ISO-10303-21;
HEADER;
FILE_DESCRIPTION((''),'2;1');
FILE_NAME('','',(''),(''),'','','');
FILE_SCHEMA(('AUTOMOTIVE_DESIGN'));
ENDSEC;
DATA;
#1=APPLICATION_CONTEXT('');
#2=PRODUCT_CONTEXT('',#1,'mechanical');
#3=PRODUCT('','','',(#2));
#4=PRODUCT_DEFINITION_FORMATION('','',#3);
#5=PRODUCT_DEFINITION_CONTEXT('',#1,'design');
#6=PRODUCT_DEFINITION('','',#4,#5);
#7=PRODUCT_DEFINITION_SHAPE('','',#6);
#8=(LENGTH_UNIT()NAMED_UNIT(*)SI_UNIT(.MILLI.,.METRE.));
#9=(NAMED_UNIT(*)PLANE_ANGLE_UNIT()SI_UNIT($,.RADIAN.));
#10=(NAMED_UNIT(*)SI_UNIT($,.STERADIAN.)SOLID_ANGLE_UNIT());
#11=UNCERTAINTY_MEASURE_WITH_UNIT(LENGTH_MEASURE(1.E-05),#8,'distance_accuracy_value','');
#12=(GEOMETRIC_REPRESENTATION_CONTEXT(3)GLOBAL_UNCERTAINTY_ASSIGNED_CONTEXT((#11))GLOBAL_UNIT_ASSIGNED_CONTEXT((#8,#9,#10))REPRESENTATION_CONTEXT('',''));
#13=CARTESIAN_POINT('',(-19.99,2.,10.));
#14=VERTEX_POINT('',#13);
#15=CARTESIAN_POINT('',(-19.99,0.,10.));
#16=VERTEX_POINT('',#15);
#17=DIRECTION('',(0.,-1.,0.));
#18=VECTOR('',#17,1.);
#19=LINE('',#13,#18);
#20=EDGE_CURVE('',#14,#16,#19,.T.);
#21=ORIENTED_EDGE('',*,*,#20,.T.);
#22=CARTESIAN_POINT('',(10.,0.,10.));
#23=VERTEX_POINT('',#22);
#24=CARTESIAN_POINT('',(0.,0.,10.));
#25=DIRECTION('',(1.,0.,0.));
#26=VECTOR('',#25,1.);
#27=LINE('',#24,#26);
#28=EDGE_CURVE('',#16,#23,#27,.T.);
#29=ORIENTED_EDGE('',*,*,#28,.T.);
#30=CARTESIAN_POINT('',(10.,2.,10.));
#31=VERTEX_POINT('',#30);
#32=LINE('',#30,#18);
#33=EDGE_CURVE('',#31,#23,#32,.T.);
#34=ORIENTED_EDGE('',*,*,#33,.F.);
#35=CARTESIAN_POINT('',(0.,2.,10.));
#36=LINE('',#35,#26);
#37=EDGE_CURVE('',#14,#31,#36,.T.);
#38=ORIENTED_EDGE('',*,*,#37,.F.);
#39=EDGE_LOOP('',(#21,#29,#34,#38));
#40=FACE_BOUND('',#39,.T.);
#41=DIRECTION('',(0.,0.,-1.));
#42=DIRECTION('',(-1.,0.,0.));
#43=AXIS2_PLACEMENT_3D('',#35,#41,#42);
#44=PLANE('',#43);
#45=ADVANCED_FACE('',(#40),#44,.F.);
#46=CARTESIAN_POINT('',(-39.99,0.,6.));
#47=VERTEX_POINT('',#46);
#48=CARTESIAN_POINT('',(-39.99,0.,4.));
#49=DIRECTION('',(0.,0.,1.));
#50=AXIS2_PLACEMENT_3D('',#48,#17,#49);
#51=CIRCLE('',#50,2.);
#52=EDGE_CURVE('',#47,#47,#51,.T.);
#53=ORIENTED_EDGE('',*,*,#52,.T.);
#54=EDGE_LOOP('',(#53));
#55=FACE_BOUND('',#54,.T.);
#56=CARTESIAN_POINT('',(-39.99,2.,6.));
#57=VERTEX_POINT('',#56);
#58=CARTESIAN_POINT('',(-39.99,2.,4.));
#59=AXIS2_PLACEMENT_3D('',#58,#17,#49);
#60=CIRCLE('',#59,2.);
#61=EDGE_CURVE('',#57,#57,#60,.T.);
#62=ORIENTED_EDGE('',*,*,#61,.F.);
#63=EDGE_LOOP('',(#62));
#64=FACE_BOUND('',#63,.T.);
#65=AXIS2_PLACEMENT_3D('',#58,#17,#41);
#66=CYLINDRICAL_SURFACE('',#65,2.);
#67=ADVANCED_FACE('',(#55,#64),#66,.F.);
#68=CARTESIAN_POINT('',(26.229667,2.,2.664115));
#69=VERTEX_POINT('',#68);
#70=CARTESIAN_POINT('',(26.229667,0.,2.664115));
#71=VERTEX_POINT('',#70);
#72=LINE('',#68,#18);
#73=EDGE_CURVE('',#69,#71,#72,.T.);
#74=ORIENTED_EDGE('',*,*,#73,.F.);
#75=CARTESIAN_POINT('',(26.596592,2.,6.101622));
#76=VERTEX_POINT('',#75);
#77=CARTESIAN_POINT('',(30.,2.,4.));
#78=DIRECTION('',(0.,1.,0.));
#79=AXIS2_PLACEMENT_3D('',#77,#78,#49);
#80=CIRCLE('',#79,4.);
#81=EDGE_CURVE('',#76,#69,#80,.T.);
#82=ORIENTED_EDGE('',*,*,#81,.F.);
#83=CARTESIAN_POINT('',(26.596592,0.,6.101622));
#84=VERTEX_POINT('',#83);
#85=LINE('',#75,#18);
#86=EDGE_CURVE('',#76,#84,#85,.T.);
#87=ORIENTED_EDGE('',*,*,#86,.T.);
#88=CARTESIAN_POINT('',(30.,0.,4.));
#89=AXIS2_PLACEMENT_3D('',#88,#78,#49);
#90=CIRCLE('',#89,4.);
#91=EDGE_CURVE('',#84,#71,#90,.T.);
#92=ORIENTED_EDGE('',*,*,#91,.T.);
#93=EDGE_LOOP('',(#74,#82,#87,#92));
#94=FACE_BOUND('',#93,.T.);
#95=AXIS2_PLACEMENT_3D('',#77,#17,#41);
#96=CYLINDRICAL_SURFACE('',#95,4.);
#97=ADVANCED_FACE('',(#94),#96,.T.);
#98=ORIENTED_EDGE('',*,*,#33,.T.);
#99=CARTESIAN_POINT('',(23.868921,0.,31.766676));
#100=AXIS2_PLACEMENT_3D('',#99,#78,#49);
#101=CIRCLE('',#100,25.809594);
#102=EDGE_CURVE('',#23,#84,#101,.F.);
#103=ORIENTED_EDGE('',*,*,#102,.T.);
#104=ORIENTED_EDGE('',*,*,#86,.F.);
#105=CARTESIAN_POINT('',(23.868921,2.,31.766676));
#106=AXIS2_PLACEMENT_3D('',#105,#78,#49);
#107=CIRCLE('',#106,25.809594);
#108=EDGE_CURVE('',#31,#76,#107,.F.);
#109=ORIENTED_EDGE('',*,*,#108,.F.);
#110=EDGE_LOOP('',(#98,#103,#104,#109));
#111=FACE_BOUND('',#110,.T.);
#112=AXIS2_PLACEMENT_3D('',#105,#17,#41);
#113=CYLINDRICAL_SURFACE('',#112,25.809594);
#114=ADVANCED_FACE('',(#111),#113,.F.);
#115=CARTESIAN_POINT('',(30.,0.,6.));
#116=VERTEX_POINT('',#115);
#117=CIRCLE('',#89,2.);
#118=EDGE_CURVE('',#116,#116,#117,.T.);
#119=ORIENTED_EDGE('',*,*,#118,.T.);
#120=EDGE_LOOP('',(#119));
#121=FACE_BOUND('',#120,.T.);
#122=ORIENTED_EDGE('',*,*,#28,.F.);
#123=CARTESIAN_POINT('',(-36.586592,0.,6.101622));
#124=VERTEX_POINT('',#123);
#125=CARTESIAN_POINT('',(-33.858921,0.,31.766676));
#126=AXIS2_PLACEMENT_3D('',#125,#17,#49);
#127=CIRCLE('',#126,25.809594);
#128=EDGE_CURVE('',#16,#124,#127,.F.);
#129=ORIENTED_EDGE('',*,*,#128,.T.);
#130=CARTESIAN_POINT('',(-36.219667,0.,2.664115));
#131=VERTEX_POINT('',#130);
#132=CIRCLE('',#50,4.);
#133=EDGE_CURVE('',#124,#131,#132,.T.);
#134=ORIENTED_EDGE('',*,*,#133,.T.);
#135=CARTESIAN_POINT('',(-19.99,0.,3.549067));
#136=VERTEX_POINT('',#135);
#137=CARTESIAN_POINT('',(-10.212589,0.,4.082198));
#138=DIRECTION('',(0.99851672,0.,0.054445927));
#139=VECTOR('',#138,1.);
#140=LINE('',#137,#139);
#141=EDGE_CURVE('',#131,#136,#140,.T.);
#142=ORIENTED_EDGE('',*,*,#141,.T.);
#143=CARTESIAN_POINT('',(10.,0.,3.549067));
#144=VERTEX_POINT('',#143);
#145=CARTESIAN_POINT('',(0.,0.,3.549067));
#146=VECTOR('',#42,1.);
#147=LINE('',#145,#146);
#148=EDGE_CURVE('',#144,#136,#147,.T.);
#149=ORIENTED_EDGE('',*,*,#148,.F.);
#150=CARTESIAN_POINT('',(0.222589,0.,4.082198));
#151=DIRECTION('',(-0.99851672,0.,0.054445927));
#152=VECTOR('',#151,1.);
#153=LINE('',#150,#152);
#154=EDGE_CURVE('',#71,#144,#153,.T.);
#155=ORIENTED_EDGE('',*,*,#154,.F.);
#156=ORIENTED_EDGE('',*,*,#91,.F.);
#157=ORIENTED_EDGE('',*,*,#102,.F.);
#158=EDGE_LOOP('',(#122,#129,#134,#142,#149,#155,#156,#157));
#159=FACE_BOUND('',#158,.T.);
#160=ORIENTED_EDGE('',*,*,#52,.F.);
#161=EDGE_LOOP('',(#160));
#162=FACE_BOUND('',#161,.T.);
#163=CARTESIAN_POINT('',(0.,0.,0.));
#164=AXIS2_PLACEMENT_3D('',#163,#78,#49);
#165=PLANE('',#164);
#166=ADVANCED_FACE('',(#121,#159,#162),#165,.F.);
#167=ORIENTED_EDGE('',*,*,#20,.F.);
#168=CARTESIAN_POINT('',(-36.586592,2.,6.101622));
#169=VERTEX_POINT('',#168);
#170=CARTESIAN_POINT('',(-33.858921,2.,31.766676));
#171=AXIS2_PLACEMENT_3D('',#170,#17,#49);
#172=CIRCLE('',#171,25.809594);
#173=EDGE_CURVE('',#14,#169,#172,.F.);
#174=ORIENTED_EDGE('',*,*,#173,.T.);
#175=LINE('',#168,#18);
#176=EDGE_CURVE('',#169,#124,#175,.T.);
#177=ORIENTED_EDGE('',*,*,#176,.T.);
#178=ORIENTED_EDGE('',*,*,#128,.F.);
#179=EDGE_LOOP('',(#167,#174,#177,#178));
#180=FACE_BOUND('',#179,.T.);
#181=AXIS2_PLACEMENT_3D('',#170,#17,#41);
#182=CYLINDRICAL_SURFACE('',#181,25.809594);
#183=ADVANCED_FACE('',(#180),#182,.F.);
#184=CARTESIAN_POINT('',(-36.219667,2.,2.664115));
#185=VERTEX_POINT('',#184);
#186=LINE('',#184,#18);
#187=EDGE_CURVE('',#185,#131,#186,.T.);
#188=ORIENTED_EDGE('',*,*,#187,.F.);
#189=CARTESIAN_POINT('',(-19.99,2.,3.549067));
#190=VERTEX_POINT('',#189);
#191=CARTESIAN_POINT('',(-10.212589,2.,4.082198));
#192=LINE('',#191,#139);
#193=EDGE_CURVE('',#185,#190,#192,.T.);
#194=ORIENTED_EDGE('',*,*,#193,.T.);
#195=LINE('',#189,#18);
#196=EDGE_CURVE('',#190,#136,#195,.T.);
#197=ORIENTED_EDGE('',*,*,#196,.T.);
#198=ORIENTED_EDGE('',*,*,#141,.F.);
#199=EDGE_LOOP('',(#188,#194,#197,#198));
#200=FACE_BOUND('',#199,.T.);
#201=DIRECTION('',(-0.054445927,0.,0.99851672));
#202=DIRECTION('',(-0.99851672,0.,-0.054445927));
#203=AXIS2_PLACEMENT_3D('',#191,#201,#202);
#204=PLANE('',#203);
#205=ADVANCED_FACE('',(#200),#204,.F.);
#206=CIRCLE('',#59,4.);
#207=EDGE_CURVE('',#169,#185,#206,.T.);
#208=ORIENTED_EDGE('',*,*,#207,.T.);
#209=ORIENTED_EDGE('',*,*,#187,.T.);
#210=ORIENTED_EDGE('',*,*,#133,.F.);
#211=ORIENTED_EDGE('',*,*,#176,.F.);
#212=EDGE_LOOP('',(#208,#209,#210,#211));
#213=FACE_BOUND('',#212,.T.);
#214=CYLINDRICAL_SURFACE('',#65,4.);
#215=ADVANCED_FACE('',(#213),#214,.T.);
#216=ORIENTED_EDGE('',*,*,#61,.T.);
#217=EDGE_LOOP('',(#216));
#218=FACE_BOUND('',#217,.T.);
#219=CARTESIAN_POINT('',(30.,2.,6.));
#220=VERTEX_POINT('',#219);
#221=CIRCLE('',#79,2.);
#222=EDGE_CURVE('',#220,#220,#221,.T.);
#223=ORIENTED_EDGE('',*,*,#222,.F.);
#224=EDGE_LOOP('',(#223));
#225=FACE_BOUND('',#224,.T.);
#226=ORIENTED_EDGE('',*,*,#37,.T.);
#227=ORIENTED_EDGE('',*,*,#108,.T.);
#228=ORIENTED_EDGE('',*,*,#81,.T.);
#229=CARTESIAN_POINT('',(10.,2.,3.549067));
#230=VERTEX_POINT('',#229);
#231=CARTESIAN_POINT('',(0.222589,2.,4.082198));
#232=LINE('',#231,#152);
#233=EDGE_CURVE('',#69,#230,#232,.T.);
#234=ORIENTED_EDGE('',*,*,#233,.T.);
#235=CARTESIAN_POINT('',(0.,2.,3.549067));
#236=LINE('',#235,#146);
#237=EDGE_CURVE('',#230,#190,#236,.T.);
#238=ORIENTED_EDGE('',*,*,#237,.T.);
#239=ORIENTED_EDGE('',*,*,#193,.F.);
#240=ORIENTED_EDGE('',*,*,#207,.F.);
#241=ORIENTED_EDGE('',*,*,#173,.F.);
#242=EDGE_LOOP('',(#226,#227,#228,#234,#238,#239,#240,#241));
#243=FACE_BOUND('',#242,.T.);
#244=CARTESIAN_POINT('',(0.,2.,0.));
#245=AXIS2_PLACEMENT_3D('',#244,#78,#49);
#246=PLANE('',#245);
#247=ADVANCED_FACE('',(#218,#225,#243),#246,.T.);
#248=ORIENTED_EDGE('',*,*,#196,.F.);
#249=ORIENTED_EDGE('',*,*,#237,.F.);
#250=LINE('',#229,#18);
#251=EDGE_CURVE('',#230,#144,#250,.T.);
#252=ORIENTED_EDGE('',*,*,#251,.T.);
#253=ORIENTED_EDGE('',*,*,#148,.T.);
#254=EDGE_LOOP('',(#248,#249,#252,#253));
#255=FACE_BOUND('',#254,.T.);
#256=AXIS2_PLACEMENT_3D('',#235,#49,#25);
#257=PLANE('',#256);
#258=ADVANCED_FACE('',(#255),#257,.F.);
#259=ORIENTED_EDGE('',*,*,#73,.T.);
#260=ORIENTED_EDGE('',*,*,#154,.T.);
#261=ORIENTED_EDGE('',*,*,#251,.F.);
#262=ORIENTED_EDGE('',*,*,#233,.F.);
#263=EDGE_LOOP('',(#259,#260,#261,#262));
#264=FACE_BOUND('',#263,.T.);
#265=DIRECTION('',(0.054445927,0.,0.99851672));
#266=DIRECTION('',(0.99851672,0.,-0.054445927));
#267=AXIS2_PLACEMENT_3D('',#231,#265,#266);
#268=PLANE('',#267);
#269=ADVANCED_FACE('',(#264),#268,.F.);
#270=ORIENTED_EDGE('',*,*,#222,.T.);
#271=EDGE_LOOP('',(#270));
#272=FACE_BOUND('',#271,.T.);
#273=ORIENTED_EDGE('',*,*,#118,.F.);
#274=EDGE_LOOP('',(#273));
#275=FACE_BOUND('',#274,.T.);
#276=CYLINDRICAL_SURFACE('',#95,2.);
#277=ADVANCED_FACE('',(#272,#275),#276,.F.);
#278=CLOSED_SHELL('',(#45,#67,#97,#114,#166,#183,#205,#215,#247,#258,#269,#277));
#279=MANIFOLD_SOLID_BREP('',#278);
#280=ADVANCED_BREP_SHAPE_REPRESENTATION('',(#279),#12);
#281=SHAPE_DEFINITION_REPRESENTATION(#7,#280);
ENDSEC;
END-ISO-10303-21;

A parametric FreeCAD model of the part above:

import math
import FreeCAD as App
import Part
import Sketcher
Q = App.Units.Quantity


def add_polygon(sketch, points):
    """Adds a closed chain of lines whose ends are joined by coincident constraints."""
    first, n = sketch.GeometryCount, len(points)
    for a, b in zip(points, points[1:] + points[:1]):
        sketch.addGeometry(Part.LineSegment(App.Vector(*a, 0), App.Vector(*b, 0)), False)
    for i in range(n):
        sketch.addConstraint(Sketcher.Constraint("Coincident", first + i, 2, first + (i + 1) % n, 1))

doc = App.newDocument("Part")
body = doc.addObject("PartDesign::Body", "Body")

sketch1 = body.newObject("Sketcher::SketchObject", "Sketch")
sketch1.AttachmentSupport = (doc.getObject("XZ_Plane"), [""])
sketch1.MapMode = "FlatFace"
sketch1.addGeometry([
    Part.LineSegment(App.Vector(26.2, 2.7, 0), App.Vector(10, 3.5, 0)),
    Part.LineSegment(App.Vector(10, 3.5, 0), App.Vector(-10, 3.5, 0)),
    Part.LineSegment(App.Vector(-10, 3.5, 0), App.Vector(-26.2, 2.7, 0)),
    Part.ArcOfCircle(Part.Circle(App.Vector(-30, 4, 0), App.Vector(0, 0, 1), 4), math.radians(32), math.radians(340)),
    Part.ArcOfCircle(Part.Circle(App.Vector(-23.9, 31.8, 0), App.Vector(0, 0, 1), 25.8), math.radians(-96), math.radians(-57)),
    Part.LineSegment(App.Vector(-10, 10, 0), App.Vector(10, 10, 0)),
    Part.ArcOfCircle(Part.Circle(App.Vector(23.9, 31.8, 0), App.Vector(0, 0, 1), 25.8), math.radians(-123), math.radians(-84)),
    Part.ArcOfCircle(Part.Circle(App.Vector(30, 4, 0), App.Vector(0, 0, 1), 4), math.radians(-160), math.radians(148)),
    Part.Circle(App.Vector(30, 4, 0), App.Vector(0, 0, 1), 2),
    Part.Circle(App.Vector(-30, 4, 0), App.Vector(0, 0, 1), 2),
], False)
sketch1.addConstraint([
    Sketcher.Constraint("Coincident", 0, 2, 1, 1),
    Sketcher.Constraint("Coincident", 1, 2, 2, 1),
    Sketcher.Constraint("Coincident", 2, 2, 3, 2),
    Sketcher.Constraint("Coincident", 3, 1, 4, 1),
    Sketcher.Constraint("Coincident", 4, 2, 5, 1),
    Sketcher.Constraint("Coincident", 5, 2, 6, 1),
    Sketcher.Constraint("Coincident", 6, 2, 7, 2),
    Sketcher.Constraint("Coincident", 7, 1, 0, 1),
    Sketcher.Constraint("Horizontal", 1),
    Sketcher.Constraint("Horizontal", 5),
    Sketcher.Constraint("Coincident", 8, 3, 7, 3),
    Sketcher.Constraint("Coincident", 9, 3, 3, 3),
    Sketcher.Constraint("Equal", 4, 6),
    Sketcher.Constraint("Equal", 3, 7),
    Sketcher.Constraint("Equal", 8, 9),
    Sketcher.Constraint("Symmetric", 4, 3, 6, 3, -2),
    Sketcher.Constraint("Symmetric", 3, 3, 7, 3, -2),
    Sketcher.Constraint("Horizontal", 2, 2, 7, 1),
    Sketcher.Constraint("Vertical", 1, 2, 4, 2),
    Sketcher.Constraint("Vertical", 0, 2, 5, 2),
    Sketcher.Constraint("Diameter", 8, Q("4 mm")),
    Sketcher.Constraint("Radius", 3, Q("4 mm")),
    Sketcher.Constraint("DistanceX", 1, 2, 1, 1, Q("20 mm")),
    Sketcher.Constraint("DistanceX", 3, 3, -1, 1, Q("30 mm")),
    Sketcher.Constraint("DistanceY", -1, 1, 3, 3, Q("4 mm")),
    Sketcher.Constraint("DistanceY", -1, 1, 4, 2, Q("10 mm")),
    Sketcher.Constraint("Radius", 4, Q("25.809594 mm")),
    Sketcher.Constraint("DistanceX", 4, 3, -1, 1, Q("23.868921 mm")),
    Sketcher.Constraint("DistanceY", 0, 2, 6, 3, Q("28.217609 mm")),
    Sketcher.Constraint("DistanceY", 2, 2, 1, 2, Q("0.884952 mm")),
])
pad1 = body.newObject("PartDesign::Pad", "Pad")
pad1.Profile = sketch1
pad1.Length = 2
pad1.Reversed = True

sketch2 = body.newObject("Sketcher::SketchObject", "Sketch001")
sketch2.AttachmentSupport = (doc.getObject("XZ_Plane"), [""])
sketch2.MapMode = "FlatFace"
sketch2.AttachmentOffset = App.Placement(App.Vector(0, 0, -2), App.Rotation())
add_polygon(sketch2, [(-41, -1), (-41, 10), (0, 10), (0, -1)])
sketch2.addConstraint([
    Sketcher.Constraint("Vertical", 0),
    Sketcher.Constraint("Horizontal", 1),
    Sketcher.Constraint("Vertical", 2),
    Sketcher.Constraint("Horizontal", 3),
    Sketcher.Constraint("PointOnObject", 1, 2, -2),
    Sketcher.Constraint("DistanceY", -1, 1, 0, 2, Q("10 mm")),
    Sketcher.Constraint("DistanceX", 1, 1, 1, 2, Q("40.799196 mm")),
    Sketcher.Constraint("DistanceY", 0, 1, 0, 2, Q("10.791684 mm")),
])
pocket1 = body.newObject("PartDesign::Pocket", "Pocket")
pocket1.Profile = sketch2
pocket1.Length = 10
pocket1.Reversed = True

sketch3 = body.newObject("Sketcher::SketchObject", "Sketch002")
sketch3.AttachmentSupport = (doc.getObject("XZ_Plane"), [""])
sketch3.MapMode = "FlatFace"
sketch3.AttachmentOffset = App.Placement(App.Vector(0, 0, -2), App.Rotation())
add_polygon(sketch3, [(-5, 3.5), (-5, 10), (0, 10), (0, 3.5)])
sketch3.addConstraint([
    Sketcher.Constraint("Vertical", 0),
    Sketcher.Constraint("Horizontal", 1),
    Sketcher.Constraint("Vertical", 2),
    Sketcher.Constraint("Horizontal", 3),
    Sketcher.Constraint("PointOnObject", 1, 2, -2),
    Sketcher.Constraint("DistanceY", -1, 1, 0, 2, Q("10 mm")),
    Sketcher.Constraint("DistanceX", 1, 1, 1, 2, Q("4.995 mm")),
    Sketcher.Constraint("DistanceY", 0, 1, 0, 2, Q("6.450933 mm")),
])
pad2 = body.newObject("PartDesign::Pad", "Pad001")
pad2.Profile = sketch3
pad2.Length = 2
body2 = doc.addObject("PartDesign::Body", "Body001")
doc.recompute()

body2.BaseFeature = body
doc.recompute()

mirroring = doc.addObject("Part::Mirroring", "Mirroring")
mirroring.Source = body
mirroring.Base = App.Vector(-4.995, 0, 0)
mirroring.Normal = App.Vector(-1, 0, 0)
body3 = doc.addObject("PartDesign::Body", "Body002")
body3.BaseFeature = mirroring
boolean = body2.newObject("PartDesign::Boolean", "Boolean")
boolean.Type = "Fuse"
boolean.addObjects([body3])
doc.recompute()
mirroring.Visibility = False

doc.recompute()
